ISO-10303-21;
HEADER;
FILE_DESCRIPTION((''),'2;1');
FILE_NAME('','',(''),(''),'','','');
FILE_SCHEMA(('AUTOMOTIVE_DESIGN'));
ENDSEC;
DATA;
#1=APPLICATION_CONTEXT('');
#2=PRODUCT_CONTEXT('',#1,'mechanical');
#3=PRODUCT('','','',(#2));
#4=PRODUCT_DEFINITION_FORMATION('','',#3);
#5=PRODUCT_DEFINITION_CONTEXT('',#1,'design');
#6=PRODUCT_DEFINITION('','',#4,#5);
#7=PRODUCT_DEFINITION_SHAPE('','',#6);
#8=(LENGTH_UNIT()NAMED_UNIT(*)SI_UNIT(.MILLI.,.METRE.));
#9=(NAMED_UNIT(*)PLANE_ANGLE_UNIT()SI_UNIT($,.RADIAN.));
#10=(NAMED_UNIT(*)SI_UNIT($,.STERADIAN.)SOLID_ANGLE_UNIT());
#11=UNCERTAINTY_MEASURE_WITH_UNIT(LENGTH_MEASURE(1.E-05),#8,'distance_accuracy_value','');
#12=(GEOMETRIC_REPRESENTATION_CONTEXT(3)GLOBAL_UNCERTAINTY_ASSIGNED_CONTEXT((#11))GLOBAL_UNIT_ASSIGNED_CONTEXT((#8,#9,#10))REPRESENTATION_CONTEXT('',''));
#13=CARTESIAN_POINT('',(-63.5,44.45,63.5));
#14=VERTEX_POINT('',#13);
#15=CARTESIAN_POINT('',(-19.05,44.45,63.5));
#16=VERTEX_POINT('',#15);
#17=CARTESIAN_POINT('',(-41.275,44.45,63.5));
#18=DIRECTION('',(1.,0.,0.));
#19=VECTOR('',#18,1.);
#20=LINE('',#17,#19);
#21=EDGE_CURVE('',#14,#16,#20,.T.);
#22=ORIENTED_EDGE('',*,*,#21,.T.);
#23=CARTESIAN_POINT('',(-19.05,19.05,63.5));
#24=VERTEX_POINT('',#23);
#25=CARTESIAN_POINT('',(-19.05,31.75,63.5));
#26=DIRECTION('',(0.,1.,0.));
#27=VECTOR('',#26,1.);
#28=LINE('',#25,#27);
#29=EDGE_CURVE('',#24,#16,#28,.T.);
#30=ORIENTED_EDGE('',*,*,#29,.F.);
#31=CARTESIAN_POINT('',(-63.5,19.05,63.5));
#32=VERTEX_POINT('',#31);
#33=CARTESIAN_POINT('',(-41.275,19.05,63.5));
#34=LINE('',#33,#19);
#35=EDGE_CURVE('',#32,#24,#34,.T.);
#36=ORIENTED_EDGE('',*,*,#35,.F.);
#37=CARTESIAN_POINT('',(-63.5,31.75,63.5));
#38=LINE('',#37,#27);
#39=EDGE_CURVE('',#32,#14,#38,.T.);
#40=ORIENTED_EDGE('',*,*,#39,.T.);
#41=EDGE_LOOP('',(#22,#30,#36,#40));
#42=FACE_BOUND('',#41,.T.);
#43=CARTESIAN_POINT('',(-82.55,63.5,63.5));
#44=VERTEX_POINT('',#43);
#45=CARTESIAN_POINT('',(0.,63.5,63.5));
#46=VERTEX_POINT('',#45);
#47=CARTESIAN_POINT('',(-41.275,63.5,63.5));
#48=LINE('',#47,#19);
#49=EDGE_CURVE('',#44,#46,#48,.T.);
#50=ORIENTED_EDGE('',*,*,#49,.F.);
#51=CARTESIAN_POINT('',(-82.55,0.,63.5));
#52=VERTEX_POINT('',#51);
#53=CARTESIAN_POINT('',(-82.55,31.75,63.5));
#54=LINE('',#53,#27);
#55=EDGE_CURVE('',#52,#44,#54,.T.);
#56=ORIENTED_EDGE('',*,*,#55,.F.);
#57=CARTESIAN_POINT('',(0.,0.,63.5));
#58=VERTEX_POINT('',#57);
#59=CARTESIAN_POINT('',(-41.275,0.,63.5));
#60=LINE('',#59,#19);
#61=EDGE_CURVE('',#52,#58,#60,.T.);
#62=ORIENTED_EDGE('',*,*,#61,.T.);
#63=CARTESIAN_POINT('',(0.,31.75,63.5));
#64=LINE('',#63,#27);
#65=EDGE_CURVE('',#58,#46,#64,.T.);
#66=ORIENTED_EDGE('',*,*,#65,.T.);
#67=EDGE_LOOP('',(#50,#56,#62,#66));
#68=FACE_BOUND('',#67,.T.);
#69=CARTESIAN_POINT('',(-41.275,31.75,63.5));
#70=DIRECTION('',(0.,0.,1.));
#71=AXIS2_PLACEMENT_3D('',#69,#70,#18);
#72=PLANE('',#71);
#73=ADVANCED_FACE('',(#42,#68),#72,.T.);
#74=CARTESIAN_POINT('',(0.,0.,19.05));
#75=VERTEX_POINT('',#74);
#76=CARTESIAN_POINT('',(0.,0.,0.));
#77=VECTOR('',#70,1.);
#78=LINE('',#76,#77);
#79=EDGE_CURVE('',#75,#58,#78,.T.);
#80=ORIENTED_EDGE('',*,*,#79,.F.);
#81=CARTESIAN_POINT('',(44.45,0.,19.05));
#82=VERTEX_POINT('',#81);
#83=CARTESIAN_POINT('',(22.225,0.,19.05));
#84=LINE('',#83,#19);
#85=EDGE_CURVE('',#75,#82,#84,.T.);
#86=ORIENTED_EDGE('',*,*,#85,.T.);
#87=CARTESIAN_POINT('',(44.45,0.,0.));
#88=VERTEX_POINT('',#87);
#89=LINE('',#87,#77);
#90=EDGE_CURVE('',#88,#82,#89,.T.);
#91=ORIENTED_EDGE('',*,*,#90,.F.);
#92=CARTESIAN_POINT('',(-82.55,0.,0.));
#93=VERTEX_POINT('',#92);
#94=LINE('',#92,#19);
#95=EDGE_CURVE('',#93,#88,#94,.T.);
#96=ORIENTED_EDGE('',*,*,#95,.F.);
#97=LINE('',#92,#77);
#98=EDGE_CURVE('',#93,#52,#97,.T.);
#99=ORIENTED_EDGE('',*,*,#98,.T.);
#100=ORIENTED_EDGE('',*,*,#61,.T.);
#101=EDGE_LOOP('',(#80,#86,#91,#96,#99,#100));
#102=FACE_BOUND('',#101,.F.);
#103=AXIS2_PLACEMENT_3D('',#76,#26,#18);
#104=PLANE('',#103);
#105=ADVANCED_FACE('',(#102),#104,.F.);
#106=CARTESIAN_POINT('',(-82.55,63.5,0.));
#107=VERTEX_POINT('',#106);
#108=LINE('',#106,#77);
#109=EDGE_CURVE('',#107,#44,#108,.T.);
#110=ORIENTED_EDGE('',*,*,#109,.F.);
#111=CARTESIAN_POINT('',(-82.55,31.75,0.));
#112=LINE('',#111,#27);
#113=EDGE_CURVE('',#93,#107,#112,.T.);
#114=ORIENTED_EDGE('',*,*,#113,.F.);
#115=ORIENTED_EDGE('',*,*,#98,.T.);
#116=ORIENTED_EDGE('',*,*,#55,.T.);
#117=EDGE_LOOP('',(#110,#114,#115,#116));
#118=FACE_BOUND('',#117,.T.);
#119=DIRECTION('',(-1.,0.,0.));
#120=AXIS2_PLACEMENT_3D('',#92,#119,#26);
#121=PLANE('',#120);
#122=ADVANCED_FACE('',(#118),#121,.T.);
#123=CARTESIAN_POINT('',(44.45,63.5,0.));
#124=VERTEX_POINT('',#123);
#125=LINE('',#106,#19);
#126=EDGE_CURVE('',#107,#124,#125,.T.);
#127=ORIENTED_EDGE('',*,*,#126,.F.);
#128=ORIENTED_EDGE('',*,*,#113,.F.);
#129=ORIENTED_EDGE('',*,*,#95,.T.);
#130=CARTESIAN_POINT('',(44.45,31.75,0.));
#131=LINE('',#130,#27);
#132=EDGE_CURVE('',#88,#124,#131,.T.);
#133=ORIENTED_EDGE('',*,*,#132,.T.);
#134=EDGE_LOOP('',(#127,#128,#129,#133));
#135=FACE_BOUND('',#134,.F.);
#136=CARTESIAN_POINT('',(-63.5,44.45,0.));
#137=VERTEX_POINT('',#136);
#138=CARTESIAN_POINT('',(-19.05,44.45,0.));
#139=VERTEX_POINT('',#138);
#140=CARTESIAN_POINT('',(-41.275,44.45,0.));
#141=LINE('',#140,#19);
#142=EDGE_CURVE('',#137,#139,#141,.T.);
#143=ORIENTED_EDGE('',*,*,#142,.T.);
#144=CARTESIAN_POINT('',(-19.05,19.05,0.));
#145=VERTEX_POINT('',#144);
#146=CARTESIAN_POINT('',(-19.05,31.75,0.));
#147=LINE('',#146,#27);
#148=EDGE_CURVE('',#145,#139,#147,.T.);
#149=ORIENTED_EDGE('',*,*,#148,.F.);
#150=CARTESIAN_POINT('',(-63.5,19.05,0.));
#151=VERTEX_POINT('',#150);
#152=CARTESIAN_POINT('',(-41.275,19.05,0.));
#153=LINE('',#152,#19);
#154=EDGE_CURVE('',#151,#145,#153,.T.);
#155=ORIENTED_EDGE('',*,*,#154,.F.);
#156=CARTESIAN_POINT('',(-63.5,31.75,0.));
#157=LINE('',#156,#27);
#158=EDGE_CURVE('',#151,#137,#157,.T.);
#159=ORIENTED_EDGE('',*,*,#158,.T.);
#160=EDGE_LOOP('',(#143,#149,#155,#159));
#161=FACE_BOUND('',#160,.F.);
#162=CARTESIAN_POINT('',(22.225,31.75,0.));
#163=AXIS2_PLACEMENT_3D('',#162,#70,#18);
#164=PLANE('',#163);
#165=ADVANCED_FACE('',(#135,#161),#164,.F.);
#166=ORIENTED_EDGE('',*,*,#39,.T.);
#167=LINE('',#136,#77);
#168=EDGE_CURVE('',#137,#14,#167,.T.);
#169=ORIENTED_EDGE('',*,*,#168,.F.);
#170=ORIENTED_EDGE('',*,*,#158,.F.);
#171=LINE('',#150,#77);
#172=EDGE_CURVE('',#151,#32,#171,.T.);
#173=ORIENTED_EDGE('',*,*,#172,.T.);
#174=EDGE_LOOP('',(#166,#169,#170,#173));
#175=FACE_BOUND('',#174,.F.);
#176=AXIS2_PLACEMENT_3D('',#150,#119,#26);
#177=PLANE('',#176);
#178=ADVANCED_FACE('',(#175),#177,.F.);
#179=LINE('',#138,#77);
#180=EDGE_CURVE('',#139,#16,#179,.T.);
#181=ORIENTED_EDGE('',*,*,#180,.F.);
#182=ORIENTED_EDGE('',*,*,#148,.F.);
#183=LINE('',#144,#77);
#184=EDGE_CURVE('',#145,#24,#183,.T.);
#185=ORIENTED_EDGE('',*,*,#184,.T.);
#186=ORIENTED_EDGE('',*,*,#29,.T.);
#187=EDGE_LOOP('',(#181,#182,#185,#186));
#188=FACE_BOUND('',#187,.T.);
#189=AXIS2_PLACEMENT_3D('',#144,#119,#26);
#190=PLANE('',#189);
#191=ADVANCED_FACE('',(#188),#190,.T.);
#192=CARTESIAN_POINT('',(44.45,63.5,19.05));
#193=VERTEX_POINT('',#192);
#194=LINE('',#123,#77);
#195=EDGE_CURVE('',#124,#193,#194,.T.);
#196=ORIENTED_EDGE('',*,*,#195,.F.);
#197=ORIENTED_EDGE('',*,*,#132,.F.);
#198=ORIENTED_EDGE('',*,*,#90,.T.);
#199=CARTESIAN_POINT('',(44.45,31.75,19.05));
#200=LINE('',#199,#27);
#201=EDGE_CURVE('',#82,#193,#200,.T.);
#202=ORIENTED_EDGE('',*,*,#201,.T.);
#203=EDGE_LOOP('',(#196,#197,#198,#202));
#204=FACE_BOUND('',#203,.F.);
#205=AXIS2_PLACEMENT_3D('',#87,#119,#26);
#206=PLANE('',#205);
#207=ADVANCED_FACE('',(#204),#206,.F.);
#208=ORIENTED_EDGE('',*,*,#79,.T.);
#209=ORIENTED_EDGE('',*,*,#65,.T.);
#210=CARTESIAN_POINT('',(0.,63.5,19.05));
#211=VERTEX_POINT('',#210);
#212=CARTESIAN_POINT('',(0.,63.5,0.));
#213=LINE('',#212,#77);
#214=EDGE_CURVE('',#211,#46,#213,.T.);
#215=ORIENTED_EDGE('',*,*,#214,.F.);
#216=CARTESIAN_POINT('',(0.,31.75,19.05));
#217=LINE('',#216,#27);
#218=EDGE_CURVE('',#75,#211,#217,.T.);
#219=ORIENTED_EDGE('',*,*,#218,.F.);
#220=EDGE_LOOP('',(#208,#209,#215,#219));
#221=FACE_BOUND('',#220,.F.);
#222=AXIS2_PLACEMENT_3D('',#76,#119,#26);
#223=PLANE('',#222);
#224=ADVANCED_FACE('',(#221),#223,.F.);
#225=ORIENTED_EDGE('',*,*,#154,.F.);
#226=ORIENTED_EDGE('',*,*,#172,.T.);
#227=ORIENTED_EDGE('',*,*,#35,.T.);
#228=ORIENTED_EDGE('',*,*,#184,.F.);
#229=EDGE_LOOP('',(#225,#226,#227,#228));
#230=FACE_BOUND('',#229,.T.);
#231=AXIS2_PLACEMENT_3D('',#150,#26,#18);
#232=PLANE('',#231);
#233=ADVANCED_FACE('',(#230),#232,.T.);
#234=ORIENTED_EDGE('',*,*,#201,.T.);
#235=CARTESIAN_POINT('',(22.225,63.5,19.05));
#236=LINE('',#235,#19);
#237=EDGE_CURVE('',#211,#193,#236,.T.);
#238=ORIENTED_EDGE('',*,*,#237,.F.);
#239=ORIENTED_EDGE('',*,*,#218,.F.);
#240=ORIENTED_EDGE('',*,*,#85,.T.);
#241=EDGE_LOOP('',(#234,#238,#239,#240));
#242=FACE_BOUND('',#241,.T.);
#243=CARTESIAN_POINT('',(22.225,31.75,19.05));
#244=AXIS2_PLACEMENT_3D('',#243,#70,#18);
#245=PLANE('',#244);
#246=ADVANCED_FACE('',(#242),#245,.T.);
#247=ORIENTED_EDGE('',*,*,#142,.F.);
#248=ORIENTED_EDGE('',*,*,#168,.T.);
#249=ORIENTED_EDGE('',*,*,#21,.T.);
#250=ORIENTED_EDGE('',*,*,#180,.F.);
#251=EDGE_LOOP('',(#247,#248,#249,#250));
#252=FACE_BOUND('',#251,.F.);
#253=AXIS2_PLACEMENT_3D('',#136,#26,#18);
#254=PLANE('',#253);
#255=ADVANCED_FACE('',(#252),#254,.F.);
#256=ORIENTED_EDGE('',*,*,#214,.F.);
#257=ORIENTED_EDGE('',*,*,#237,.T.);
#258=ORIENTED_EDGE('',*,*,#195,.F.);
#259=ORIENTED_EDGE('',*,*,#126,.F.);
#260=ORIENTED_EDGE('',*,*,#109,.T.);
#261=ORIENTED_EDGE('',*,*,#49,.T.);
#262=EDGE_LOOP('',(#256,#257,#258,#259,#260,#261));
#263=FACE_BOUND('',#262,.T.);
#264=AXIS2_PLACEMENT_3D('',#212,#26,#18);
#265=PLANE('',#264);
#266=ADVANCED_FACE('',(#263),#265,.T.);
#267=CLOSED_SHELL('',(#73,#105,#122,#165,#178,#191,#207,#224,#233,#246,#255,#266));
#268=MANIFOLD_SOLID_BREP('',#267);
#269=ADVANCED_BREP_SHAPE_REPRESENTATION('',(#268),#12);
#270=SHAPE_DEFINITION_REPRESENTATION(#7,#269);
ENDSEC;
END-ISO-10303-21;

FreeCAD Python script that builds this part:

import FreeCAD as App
import Part
import Sketcher

V = App.Vector
Q = App.Units.Quantity

doc = App.newDocument("Part")
body = doc.addObject("PartDesign::Body", "Body")

# Sketch on XY plane
sketch1 = body.newObject("Sketcher::SketchObject", "Sketch")
sketch1.AttachmentSupport = (doc.getObject("XY_Plane"), [""])
sketch1.MapMode = "FlatFace"
sketch1.addGeometry(Part.LineSegment(V(-83, 64, 0), V(-83, 0, 0)), False)
sketch1.addGeometry(Part.LineSegment(V(-83, 0, 0), V(0, 0, 0)), False)
sketch1.addGeometry(Part.LineSegment(V(0, 0, 0), V(0, 64, 0)), False)
sketch1.addGeometry(Part.LineSegment(V(0, 64, 0), V(-83, 64, 0)), False)
sketch1.addGeometry(Part.LineSegment(V(-19, 19, 0), V(-64, 19, 0)), False)
sketch1.addGeometry(Part.LineSegment(V(-64, 19, 0), V(-64, 44, 0)), False)
sketch1.addGeometry(Part.LineSegment(V(-64, 44, 0), V(-19, 44, 0)), False)
sketch1.addGeometry(Part.LineSegment(V(-19, 44, 0), V(-19, 19, 0)), False)
sketch1.addConstraint(Sketcher.Constraint("Coincident", 0, 2, 1, 1))
sketch1.addConstraint(Sketcher.Constraint("Coincident", 1, 2, 2, 1))
sketch1.addConstraint(Sketcher.Constraint("Coincident", 2, 2, 3, 1))
sketch1.addConstraint(Sketcher.Constraint("Coincident", 3, 2, 0, 1))
sketch1.addConstraint(Sketcher.Constraint("Coincident", 4, 2, 5, 1))
sketch1.addConstraint(Sketcher.Constraint("Coincident", 5, 2, 6, 1))
sketch1.addConstraint(Sketcher.Constraint("Coincident", 6, 2, 7, 1))
sketch1.addConstraint(Sketcher.Constraint("Coincident", 7, 2, 4, 1))
sketch1.addConstraint(Sketcher.Constraint("Vertical", 0))
sketch1.addConstraint(Sketcher.Constraint("Horizontal", 1))
sketch1.addConstraint(Sketcher.Constraint("Vertical", 2))
sketch1.addConstraint(Sketcher.Constraint("Horizontal", 3))
sketch1.addConstraint(Sketcher.Constraint("Horizontal", 4))
sketch1.addConstraint(Sketcher.Constraint("Vertical", 5))
sketch1.addConstraint(Sketcher.Constraint("Horizontal", 6))
sketch1.addConstraint(Sketcher.Constraint("Vertical", 7))
sketch1.addConstraint(Sketcher.Constraint("Coincident", 1, 2, -1, 1))
sketch1.addConstraint(Sketcher.Constraint("DistanceY", 5, 1, 5, 2, Q("1 in")))
sketch1.addConstraint(Sketcher.Constraint("DistanceY", 0, 2, 0, 1, Q("2.5 in")))
sketch1.addConstraint(Sketcher.Constraint("DistanceX", 1, 1, 1, 2, Q("3.25 in")))
sketch1.addConstraint(Sketcher.Constraint("DistanceX", 4, 2, 4, 1, Q("1.75 in")))
sketch1.addConstraint(Sketcher.Constraint("DistanceX", 4, 2, -1, 1, Q("2.5 in")))
sketch1.addConstraint(Sketcher.Constraint("DistanceY", -1, 1, 4, 2, Q("0.75 in")))
pad1 = body.newObject("PartDesign::Pad", "Pad")
pad1.Profile = sketch1
pad1.Length = Q("2.5 in")

# Sketch on XY plane
sketch2 = body.newObject("Sketcher::SketchObject", "Sketch001")
sketch2.AttachmentSupport = (doc.getObject("XY_Plane"), [""])
sketch2.MapMode = "FlatFace"
sketch2.addGeometry(Part.LineSegment(V(0, 64, 0), V(0, 0, 0)), False)
sketch2.addGeometry(Part.LineSegment(V(0, 0, 0), V(44, 0, 0)), False)
sketch2.addGeometry(Part.LineSegment(V(44, 0, 0), V(44, 64, 0)), False)
sketch2.addGeometry(Part.LineSegment(V(44, 64, 0), V(0, 64, 0)), False)
sketch2.addConstraint(Sketcher.Constraint("Coincident", 0, 2, 1, 1))
sketch2.addConstraint(Sketcher.Constraint("Coincident", 1, 2, 2, 1))
sketch2.addConstraint(Sketcher.Constraint("Coincident", 2, 2, 3, 1))
sketch2.addConstraint(Sketcher.Constraint("Coincident", 3, 2, 0, 1))
sketch2.addConstraint(Sketcher.Constraint("Vertical", 0))
sketch2.addConstraint(Sketcher.Constraint("Horizontal", 1))
sketch2.addConstraint(Sketcher.Constraint("Vertical", 2))
sketch2.addConstraint(Sketcher.Constraint("Horizontal", 3))
sketch2.addConstraint(Sketcher.Constraint("Coincident", 0, 2, -1, 1))
sketch2.addConstraint(Sketcher.Constraint("DistanceY", 0, 2, 0, 1, Q("2.5 in")))
sketch2.addConstraint(Sketcher.Constraint("DistanceX", 1, 1, 1, 2, Q("1.75 in")))
pad2 = body.newObject("PartDesign::Pad", "Pad001")
pad2.Profile = sketch2
pad2.Length = Q("0.75 in")

doc.recompute()
